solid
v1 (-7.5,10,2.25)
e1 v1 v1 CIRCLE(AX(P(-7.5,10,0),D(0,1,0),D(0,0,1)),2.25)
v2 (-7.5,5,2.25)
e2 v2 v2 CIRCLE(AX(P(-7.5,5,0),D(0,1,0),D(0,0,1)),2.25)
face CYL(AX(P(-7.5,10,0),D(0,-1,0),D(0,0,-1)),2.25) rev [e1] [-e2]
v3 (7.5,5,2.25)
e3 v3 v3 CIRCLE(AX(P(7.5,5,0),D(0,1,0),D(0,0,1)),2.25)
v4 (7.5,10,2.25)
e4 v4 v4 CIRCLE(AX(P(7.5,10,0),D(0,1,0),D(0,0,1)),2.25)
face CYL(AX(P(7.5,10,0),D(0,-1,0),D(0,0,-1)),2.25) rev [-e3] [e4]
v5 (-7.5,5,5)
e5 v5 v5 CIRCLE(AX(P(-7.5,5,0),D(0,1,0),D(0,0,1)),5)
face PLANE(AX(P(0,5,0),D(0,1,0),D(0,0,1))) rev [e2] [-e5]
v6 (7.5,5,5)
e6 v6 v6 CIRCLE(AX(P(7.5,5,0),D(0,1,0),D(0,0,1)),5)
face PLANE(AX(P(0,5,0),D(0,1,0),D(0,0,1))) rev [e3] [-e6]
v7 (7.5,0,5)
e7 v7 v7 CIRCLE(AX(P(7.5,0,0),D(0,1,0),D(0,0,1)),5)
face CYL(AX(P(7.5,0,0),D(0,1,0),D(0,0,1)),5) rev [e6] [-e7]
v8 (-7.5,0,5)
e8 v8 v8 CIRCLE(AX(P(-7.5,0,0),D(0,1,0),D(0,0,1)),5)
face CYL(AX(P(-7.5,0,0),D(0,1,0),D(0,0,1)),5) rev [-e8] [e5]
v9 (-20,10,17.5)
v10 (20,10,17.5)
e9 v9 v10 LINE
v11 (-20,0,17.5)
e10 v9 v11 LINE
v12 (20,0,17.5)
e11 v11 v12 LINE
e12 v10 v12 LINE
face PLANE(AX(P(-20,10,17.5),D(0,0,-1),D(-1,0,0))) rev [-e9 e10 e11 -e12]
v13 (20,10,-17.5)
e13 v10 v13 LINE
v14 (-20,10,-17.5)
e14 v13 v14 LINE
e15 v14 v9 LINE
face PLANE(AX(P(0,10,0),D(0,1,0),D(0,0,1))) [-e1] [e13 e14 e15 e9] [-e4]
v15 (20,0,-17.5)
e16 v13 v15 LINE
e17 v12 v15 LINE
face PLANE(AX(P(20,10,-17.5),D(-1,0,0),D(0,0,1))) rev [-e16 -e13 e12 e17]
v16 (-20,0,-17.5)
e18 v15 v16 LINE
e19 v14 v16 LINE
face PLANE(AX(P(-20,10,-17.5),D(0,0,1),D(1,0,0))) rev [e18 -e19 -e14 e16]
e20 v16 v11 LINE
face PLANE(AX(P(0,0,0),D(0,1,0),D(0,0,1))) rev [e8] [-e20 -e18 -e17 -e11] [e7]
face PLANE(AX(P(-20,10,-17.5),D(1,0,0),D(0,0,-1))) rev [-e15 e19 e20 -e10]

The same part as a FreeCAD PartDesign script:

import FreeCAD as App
import Part
import Sketcher

V = App.Vector
Q = App.Units.Quantity

doc = App.newDocument("Part")
body = doc.addObject("PartDesign::Body", "Body")

# Sketch on XZ plane
sketch1 = body.newObject("Sketcher::SketchObject", "Sketch")
sketch1.AttachmentSupport = (doc.getObject("XZ_Plane"), [""])
sketch1.MapMode = "FlatFace"
sketch1.addGeometry([
    Part.LineSegment(V(-20, -18, 0), V(-20, 18, 0)),
    Part.LineSegment(V(-20, 18, 0), V(20, 18, 0)),
    Part.LineSegment(V(20, 18, 0), V(20, -18, 0)),
    Part.LineSegment(V(20, -18, 0), V(-20, -18, 0)),
], False)
sketch1.addConstraint([
    Sketcher.Constraint("Coincident", 0, 2, 1, 1),
    Sketcher.Constraint("Coincident", 1, 2, 2, 1),
    Sketcher.Constraint("Coincident", 2, 2, 3, 1),
    Sketcher.Constraint("Coincident", 3, 2, 0, 1),
    Sketcher.Constraint("Vertical", 0),
    Sketcher.Constraint("Horizontal", 1),
    Sketcher.Constraint("Vertical", 2),
    Sketcher.Constraint("Horizontal", 3),
    Sketcher.Constraint("Symmetric", 0, 2, 2, 2, -1, 1),
    Sketcher.Constraint("DistanceX", 1, 1, 1, 2, Q("40 mm")),
    Sketcher.Constraint("DistanceY", 0, 1, 0, 2, Q("35 mm")),
])
pad1 = body.newObject("PartDesign::Pad", "Pad")
pad1.Profile = sketch1
pad1.Length = 10
pad1.Reversed = True

# Sketch on XZ plane
sketch2 = body.newObject("Sketcher::SketchObject", "Sketch001")
sketch2.AttachmentSupport = (doc.getObject("XZ_Plane"), [""])
sketch2.MapMode = "FlatFace"
sketch2.AttachmentOffset = App.Placement(V(0, 0, -10), App.Rotation())
sketch2.addGeometry([
    Part.Circle(V(-7.5, 0, 0), V(0, 0, 1), 2.2),
    Part.Circle(V(7.5, 0, 0), V(0, 0, 1), 2.2),
], False)
sketch2.addConstraint([
    Sketcher.Constraint("Equal", 0, 1),
    Sketcher.Constraint("Symmetric", 0, 3, 1, 3, -1, 1),
    Sketcher.Constraint("PointOnObject", 0, 3, -1),
    Sketcher.Constraint("Diameter", 0, Q("4.5 mm")),
    Sketcher.Constraint("DistanceX", 0, 3, 1, 3, Q("15 mm")),
])
pocket1 = body.newObject("PartDesign::Pocket", "Pocket")
pocket1.Profile = sketch2
pocket1.Length = 5
pocket1.Reversed = True

# Sketch on XZ plane
sketch3 = body.newObject("Sketcher::SketchObject", "Sketch002")
sketch3.AttachmentSupport = (doc.getObject("XZ_Plane"), [""])
sketch3.MapMode = "FlatFace"
sketch3.addGeometry([
    Part.Circle(V(-8, 0, 0), V(0, 0, 1), 5),
    Part.Circle(V(8, 0, 0), V(0, 0, 1), 5),
], False)
sketch3.addConstraint([
    Sketcher.Constraint("Equal", 0, 1),
    Sketcher.Constraint("Symmetric", 0, 3, 1, 3, -1, 1),
    Sketcher.Constraint("PointOnObject", 0, 3, -1),
    Sketcher.Constraint("Diameter", 0, Q("10 mm")),
    Sketcher.Constraint("DistanceX", 0, 3, 1, 3, Q("15 mm")),
])
pocket2 = body.newObject("PartDesign::Pocket", "Pocket001")
pocket2.Profile = sketch3
pocket2.Length = 5

doc.recompute()
